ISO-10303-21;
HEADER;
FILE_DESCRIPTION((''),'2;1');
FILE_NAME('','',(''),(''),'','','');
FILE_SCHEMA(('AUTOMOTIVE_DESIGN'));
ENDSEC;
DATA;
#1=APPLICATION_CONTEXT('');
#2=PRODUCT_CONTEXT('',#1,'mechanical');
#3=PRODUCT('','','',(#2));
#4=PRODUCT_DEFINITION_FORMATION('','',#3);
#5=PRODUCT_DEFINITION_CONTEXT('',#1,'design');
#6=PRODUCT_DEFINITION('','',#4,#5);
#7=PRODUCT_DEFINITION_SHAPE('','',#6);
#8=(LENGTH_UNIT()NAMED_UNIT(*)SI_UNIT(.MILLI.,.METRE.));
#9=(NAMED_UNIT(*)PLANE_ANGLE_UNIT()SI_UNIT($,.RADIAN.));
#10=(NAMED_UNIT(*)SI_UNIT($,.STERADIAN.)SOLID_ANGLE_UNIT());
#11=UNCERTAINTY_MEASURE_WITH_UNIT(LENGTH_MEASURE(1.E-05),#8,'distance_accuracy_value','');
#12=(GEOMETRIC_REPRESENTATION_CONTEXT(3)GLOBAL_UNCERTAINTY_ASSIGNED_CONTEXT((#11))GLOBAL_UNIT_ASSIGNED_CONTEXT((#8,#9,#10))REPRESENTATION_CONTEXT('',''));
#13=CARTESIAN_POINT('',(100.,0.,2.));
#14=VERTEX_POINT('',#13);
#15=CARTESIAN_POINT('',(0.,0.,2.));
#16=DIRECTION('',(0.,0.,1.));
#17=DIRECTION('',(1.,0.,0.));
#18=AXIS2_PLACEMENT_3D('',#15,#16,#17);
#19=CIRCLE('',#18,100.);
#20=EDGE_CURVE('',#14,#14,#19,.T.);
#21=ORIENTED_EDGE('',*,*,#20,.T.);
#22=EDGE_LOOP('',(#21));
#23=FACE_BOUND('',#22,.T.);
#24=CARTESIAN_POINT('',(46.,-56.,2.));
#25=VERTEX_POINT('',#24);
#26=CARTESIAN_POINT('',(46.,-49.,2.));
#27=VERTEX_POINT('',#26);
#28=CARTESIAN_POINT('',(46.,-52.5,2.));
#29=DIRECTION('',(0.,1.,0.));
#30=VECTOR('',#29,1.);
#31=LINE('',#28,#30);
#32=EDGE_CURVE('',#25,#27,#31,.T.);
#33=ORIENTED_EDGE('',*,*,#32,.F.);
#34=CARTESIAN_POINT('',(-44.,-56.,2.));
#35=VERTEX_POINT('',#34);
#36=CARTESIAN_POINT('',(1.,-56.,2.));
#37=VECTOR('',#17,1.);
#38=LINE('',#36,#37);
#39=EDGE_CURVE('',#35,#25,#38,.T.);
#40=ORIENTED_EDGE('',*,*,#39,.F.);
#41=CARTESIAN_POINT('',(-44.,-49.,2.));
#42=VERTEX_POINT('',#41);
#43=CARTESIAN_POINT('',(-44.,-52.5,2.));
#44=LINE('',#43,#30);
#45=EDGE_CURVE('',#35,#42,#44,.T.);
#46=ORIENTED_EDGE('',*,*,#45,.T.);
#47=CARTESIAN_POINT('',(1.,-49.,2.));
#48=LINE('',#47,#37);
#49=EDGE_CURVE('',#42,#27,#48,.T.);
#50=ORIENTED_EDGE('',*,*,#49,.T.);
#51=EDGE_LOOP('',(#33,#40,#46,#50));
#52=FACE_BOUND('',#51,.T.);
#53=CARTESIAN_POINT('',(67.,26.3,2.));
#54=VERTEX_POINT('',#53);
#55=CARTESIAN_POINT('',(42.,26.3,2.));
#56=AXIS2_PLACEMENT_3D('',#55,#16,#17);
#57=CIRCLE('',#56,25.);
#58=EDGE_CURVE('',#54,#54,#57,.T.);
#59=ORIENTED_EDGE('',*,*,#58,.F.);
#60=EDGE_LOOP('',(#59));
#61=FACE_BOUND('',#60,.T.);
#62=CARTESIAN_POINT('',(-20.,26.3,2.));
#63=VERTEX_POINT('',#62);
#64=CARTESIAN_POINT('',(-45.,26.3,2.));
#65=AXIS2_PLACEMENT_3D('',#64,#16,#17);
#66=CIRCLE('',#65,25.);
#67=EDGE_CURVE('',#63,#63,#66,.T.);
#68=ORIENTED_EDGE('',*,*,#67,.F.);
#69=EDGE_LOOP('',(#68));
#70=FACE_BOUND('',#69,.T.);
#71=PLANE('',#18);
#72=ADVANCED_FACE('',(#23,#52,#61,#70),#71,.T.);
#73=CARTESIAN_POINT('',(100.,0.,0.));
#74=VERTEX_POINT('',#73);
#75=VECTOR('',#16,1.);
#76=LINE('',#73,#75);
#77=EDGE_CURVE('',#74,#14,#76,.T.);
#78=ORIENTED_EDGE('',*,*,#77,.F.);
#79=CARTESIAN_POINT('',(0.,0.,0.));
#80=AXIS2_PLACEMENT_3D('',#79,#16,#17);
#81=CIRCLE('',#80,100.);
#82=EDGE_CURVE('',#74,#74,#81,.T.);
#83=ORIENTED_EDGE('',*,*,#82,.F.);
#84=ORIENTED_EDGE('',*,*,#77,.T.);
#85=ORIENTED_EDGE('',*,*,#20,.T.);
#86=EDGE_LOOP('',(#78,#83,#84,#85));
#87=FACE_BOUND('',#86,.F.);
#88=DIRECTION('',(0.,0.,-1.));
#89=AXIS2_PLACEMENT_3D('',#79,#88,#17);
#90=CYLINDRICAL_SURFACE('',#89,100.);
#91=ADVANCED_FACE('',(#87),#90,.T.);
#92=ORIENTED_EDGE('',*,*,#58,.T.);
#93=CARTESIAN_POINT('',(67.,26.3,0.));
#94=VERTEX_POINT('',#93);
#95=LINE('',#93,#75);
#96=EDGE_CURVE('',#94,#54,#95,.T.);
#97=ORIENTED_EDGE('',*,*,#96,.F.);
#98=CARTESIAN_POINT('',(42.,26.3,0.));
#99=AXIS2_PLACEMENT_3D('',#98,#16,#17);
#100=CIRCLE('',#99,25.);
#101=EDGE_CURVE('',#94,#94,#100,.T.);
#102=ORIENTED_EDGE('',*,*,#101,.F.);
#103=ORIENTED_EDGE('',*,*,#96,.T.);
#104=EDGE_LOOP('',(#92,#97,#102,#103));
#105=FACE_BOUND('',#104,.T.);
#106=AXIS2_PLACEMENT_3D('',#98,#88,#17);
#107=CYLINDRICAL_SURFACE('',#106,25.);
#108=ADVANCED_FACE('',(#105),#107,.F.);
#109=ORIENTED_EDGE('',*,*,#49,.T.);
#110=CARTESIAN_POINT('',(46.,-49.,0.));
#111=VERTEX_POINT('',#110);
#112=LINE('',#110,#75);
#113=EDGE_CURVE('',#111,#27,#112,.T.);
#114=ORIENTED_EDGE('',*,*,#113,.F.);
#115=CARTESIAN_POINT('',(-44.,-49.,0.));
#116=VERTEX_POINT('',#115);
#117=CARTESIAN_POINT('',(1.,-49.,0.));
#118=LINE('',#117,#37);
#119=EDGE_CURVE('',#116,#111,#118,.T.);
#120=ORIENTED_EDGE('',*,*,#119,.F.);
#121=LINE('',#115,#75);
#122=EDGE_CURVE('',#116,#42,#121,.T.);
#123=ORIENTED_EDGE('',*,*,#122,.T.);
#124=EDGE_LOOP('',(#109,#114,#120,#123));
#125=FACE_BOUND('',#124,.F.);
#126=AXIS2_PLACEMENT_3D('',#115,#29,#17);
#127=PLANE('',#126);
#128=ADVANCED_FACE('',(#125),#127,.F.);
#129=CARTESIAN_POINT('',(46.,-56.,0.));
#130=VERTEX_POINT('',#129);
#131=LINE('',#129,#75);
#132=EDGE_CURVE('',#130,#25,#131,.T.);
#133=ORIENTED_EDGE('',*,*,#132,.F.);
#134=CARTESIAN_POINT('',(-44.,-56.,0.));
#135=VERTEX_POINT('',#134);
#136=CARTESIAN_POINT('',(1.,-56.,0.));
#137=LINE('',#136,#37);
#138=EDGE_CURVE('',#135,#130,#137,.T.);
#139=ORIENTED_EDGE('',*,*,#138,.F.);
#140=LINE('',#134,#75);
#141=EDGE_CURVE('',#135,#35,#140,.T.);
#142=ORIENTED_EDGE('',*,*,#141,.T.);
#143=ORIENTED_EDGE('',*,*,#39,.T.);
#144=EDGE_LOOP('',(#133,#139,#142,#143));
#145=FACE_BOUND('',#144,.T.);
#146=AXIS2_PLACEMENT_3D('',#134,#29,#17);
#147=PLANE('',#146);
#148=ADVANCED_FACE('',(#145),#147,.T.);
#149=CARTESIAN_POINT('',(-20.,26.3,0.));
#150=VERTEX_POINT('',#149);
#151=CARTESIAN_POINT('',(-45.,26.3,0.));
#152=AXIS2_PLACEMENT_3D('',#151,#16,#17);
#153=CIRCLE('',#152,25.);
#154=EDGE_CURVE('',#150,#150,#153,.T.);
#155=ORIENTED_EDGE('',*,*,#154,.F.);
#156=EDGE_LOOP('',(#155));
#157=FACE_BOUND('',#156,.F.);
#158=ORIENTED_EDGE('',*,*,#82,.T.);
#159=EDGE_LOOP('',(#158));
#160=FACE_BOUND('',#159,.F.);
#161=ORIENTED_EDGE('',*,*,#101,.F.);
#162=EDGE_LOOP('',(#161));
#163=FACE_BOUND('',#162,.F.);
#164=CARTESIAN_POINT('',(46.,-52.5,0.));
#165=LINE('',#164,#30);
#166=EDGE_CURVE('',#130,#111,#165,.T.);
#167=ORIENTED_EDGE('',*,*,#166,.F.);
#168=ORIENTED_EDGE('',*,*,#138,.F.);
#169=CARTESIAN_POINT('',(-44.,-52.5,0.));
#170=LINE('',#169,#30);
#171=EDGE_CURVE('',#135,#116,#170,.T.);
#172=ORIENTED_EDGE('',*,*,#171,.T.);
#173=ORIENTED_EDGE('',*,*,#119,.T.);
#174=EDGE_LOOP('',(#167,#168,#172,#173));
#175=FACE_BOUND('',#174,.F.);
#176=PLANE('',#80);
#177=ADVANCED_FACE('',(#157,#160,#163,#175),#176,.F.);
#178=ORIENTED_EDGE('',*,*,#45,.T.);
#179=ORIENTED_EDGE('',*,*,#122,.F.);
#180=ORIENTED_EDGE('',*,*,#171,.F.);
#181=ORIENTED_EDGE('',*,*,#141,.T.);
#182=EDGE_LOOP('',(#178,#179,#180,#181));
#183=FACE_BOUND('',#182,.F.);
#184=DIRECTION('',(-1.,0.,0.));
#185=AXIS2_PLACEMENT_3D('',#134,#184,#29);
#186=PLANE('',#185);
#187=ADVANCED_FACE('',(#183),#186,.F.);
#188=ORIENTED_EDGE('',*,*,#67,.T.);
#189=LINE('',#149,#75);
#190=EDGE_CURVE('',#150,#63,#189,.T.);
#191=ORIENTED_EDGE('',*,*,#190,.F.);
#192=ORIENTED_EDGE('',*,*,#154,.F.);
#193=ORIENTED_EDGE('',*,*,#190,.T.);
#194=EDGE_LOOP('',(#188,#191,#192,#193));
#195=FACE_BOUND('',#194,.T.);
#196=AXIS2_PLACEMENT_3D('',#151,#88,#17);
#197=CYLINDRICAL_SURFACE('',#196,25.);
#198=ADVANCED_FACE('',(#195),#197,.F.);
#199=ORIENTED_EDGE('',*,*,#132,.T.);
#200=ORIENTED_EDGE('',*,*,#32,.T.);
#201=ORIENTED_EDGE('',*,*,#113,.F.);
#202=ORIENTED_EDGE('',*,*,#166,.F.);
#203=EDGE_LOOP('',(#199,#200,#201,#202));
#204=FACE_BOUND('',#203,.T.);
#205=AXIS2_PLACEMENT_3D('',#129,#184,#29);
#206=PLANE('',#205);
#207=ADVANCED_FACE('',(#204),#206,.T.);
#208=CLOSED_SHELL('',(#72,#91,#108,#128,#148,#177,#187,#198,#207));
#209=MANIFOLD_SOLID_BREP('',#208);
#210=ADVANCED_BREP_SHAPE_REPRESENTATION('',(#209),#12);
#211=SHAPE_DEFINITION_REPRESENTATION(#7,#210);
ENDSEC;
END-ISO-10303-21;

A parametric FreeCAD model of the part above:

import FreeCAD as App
import Part
import Sketcher

V = App.Vector


def add_polygon(sketch, points):
    """Adds a closed chain of lines whose ends are joined by coincident constraints."""
    first, n = sketch.GeometryCount, len(points)
    for a, b in zip(points, points[1:] + points[:1]):
        sketch.addGeometry(Part.LineSegment(App.Vector(*a, 0), App.Vector(*b, 0)), False)
    for i in range(n):
        sketch.addConstraint(Sketcher.Constraint("Coincident", first + i, 2, first + (i + 1) % n, 1))

doc = App.newDocument("Part")
body = doc.addObject("PartDesign::Body", "Body")

# Sketch on XY plane
sketch1 = body.newObject("Sketcher::SketchObject", "Sketch")
sketch1.AttachmentSupport = (doc.getObject("XY_Plane"), [""])
sketch1.MapMode = "FlatFace"
sketch1.addGeometry(Part.Circle(V(42, 26, 0), V(0, 0, 1), 25), False)
sketch1.addConstraint(Sketcher.Constraint("Diameter", 0, 50.0))
sketch1.addConstraint(Sketcher.Constraint("DistanceX", -1, 1, 0, 3, 42.0))
sketch1.addConstraint(Sketcher.Constraint("DistanceY", -1, 1, 0, 3, 26.3))
pad1 = body.newObject("PartDesign::Pad", "Pad")
pad1.Profile = sketch1
pad1.Length = 2
body2 = doc.addObject("PartDesign::Body", "Body001")

# Sketch on XY plane
sketch2 = body2.newObject("Sketcher::SketchObject", "Sketch001")
sketch2.AttachmentSupport = (doc.getObject("XY_Plane001"), [""])
sketch2.MapMode = "FlatFace"
sketch2.addGeometry(Part.Circle(V(-45, 26, 0), V(0, 0, 1), 25), False)
sketch2.addConstraint(Sketcher.Constraint("Diameter", 0, 50.0))
sketch2.addConstraint(Sketcher.Constraint("DistanceX", 0, 3, -1, 1, 45.0))
sketch2.addConstraint(Sketcher.Constraint("DistanceY", -1, 1, 0, 3, 26.3))
pad2 = body2.newObject("PartDesign::Pad", "Pad001")
pad2.Profile = sketch2
pad2.Length = 2
body3 = doc.addObject("PartDesign::Body", "Body002")

# Sketch on XY plane
sketch3 = body3.newObject("Sketcher::SketchObject", "Sketch002")
sketch3.AttachmentSupport = (doc.getObject("XY_Plane002"), [""])
sketch3.MapMode = "FlatFace"
add_polygon(sketch3, [(-44, -49), (-44, -56), (46, -56), (46, -49)])  # lines 0-3
sketch3.addConstraint(Sketcher.Constraint("Vertical", 0))
sketch3.addConstraint(Sketcher.Constraint("Horizontal", 1))
sketch3.addConstraint(Sketcher.Constraint("Vertical", 2))
sketch3.addConstraint(Sketcher.Constraint("Horizontal", 3))
sketch3.addConstraint(Sketcher.Constraint("DistanceX", 1, 1, 1, 2, 90.0))
sketch3.addConstraint(Sketcher.Constraint("DistanceY", 0, 2, 0, 1, 7.0))
sketch3.addConstraint(Sketcher.Constraint("DistanceX", 0, 2, -1, 1, 44.0))
sketch3.addConstraint(Sketcher.Constraint("DistanceY", 0, 2, -1, 1, 56.0))
pad3 = body3.newObject("PartDesign::Pad", "Pad002")
pad3.Profile = sketch3
pad3.Length = 2
body4 = doc.addObject("PartDesign::Body", "Body003")

# Sketch on XY plane
sketch4 = body4.newObject("Sketcher::SketchObject", "Sketch003")
sketch4.AttachmentSupport = (doc.getObject("XY_Plane003"), [""])
sketch4.MapMode = "FlatFace"
sketch4.addGeometry(Part.Circle(V(0, 0, 0), V(0, 0, 1), 100), False)
sketch4.addConstraint(Sketcher.Constraint("Coincident", 0, 3, -1, 1))
sketch4.addConstraint(Sketcher.Constraint("Diameter", 0, 200.0))
pad4 = body4.newObject("PartDesign::Pad", "Pad003")
pad4.Profile = sketch4
pad4.Length = 2
doc.recompute()

boolean = body4.newObject("PartDesign::Boolean", "Boolean")
boolean.Type = "Cut"
boolean.addObjects([body3])
doc.recompute()

boolean2 = body4.newObject("PartDesign::Boolean", "Boolean001")
boolean2.Type = "Cut"
boolean2.addObjects([body2])
doc.recompute()

boolean3 = body4.newObject("PartDesign::Boolean", "Boolean002")
boolean3.Type = "Cut"
boolean3.addObjects([body])

doc.recompute()
